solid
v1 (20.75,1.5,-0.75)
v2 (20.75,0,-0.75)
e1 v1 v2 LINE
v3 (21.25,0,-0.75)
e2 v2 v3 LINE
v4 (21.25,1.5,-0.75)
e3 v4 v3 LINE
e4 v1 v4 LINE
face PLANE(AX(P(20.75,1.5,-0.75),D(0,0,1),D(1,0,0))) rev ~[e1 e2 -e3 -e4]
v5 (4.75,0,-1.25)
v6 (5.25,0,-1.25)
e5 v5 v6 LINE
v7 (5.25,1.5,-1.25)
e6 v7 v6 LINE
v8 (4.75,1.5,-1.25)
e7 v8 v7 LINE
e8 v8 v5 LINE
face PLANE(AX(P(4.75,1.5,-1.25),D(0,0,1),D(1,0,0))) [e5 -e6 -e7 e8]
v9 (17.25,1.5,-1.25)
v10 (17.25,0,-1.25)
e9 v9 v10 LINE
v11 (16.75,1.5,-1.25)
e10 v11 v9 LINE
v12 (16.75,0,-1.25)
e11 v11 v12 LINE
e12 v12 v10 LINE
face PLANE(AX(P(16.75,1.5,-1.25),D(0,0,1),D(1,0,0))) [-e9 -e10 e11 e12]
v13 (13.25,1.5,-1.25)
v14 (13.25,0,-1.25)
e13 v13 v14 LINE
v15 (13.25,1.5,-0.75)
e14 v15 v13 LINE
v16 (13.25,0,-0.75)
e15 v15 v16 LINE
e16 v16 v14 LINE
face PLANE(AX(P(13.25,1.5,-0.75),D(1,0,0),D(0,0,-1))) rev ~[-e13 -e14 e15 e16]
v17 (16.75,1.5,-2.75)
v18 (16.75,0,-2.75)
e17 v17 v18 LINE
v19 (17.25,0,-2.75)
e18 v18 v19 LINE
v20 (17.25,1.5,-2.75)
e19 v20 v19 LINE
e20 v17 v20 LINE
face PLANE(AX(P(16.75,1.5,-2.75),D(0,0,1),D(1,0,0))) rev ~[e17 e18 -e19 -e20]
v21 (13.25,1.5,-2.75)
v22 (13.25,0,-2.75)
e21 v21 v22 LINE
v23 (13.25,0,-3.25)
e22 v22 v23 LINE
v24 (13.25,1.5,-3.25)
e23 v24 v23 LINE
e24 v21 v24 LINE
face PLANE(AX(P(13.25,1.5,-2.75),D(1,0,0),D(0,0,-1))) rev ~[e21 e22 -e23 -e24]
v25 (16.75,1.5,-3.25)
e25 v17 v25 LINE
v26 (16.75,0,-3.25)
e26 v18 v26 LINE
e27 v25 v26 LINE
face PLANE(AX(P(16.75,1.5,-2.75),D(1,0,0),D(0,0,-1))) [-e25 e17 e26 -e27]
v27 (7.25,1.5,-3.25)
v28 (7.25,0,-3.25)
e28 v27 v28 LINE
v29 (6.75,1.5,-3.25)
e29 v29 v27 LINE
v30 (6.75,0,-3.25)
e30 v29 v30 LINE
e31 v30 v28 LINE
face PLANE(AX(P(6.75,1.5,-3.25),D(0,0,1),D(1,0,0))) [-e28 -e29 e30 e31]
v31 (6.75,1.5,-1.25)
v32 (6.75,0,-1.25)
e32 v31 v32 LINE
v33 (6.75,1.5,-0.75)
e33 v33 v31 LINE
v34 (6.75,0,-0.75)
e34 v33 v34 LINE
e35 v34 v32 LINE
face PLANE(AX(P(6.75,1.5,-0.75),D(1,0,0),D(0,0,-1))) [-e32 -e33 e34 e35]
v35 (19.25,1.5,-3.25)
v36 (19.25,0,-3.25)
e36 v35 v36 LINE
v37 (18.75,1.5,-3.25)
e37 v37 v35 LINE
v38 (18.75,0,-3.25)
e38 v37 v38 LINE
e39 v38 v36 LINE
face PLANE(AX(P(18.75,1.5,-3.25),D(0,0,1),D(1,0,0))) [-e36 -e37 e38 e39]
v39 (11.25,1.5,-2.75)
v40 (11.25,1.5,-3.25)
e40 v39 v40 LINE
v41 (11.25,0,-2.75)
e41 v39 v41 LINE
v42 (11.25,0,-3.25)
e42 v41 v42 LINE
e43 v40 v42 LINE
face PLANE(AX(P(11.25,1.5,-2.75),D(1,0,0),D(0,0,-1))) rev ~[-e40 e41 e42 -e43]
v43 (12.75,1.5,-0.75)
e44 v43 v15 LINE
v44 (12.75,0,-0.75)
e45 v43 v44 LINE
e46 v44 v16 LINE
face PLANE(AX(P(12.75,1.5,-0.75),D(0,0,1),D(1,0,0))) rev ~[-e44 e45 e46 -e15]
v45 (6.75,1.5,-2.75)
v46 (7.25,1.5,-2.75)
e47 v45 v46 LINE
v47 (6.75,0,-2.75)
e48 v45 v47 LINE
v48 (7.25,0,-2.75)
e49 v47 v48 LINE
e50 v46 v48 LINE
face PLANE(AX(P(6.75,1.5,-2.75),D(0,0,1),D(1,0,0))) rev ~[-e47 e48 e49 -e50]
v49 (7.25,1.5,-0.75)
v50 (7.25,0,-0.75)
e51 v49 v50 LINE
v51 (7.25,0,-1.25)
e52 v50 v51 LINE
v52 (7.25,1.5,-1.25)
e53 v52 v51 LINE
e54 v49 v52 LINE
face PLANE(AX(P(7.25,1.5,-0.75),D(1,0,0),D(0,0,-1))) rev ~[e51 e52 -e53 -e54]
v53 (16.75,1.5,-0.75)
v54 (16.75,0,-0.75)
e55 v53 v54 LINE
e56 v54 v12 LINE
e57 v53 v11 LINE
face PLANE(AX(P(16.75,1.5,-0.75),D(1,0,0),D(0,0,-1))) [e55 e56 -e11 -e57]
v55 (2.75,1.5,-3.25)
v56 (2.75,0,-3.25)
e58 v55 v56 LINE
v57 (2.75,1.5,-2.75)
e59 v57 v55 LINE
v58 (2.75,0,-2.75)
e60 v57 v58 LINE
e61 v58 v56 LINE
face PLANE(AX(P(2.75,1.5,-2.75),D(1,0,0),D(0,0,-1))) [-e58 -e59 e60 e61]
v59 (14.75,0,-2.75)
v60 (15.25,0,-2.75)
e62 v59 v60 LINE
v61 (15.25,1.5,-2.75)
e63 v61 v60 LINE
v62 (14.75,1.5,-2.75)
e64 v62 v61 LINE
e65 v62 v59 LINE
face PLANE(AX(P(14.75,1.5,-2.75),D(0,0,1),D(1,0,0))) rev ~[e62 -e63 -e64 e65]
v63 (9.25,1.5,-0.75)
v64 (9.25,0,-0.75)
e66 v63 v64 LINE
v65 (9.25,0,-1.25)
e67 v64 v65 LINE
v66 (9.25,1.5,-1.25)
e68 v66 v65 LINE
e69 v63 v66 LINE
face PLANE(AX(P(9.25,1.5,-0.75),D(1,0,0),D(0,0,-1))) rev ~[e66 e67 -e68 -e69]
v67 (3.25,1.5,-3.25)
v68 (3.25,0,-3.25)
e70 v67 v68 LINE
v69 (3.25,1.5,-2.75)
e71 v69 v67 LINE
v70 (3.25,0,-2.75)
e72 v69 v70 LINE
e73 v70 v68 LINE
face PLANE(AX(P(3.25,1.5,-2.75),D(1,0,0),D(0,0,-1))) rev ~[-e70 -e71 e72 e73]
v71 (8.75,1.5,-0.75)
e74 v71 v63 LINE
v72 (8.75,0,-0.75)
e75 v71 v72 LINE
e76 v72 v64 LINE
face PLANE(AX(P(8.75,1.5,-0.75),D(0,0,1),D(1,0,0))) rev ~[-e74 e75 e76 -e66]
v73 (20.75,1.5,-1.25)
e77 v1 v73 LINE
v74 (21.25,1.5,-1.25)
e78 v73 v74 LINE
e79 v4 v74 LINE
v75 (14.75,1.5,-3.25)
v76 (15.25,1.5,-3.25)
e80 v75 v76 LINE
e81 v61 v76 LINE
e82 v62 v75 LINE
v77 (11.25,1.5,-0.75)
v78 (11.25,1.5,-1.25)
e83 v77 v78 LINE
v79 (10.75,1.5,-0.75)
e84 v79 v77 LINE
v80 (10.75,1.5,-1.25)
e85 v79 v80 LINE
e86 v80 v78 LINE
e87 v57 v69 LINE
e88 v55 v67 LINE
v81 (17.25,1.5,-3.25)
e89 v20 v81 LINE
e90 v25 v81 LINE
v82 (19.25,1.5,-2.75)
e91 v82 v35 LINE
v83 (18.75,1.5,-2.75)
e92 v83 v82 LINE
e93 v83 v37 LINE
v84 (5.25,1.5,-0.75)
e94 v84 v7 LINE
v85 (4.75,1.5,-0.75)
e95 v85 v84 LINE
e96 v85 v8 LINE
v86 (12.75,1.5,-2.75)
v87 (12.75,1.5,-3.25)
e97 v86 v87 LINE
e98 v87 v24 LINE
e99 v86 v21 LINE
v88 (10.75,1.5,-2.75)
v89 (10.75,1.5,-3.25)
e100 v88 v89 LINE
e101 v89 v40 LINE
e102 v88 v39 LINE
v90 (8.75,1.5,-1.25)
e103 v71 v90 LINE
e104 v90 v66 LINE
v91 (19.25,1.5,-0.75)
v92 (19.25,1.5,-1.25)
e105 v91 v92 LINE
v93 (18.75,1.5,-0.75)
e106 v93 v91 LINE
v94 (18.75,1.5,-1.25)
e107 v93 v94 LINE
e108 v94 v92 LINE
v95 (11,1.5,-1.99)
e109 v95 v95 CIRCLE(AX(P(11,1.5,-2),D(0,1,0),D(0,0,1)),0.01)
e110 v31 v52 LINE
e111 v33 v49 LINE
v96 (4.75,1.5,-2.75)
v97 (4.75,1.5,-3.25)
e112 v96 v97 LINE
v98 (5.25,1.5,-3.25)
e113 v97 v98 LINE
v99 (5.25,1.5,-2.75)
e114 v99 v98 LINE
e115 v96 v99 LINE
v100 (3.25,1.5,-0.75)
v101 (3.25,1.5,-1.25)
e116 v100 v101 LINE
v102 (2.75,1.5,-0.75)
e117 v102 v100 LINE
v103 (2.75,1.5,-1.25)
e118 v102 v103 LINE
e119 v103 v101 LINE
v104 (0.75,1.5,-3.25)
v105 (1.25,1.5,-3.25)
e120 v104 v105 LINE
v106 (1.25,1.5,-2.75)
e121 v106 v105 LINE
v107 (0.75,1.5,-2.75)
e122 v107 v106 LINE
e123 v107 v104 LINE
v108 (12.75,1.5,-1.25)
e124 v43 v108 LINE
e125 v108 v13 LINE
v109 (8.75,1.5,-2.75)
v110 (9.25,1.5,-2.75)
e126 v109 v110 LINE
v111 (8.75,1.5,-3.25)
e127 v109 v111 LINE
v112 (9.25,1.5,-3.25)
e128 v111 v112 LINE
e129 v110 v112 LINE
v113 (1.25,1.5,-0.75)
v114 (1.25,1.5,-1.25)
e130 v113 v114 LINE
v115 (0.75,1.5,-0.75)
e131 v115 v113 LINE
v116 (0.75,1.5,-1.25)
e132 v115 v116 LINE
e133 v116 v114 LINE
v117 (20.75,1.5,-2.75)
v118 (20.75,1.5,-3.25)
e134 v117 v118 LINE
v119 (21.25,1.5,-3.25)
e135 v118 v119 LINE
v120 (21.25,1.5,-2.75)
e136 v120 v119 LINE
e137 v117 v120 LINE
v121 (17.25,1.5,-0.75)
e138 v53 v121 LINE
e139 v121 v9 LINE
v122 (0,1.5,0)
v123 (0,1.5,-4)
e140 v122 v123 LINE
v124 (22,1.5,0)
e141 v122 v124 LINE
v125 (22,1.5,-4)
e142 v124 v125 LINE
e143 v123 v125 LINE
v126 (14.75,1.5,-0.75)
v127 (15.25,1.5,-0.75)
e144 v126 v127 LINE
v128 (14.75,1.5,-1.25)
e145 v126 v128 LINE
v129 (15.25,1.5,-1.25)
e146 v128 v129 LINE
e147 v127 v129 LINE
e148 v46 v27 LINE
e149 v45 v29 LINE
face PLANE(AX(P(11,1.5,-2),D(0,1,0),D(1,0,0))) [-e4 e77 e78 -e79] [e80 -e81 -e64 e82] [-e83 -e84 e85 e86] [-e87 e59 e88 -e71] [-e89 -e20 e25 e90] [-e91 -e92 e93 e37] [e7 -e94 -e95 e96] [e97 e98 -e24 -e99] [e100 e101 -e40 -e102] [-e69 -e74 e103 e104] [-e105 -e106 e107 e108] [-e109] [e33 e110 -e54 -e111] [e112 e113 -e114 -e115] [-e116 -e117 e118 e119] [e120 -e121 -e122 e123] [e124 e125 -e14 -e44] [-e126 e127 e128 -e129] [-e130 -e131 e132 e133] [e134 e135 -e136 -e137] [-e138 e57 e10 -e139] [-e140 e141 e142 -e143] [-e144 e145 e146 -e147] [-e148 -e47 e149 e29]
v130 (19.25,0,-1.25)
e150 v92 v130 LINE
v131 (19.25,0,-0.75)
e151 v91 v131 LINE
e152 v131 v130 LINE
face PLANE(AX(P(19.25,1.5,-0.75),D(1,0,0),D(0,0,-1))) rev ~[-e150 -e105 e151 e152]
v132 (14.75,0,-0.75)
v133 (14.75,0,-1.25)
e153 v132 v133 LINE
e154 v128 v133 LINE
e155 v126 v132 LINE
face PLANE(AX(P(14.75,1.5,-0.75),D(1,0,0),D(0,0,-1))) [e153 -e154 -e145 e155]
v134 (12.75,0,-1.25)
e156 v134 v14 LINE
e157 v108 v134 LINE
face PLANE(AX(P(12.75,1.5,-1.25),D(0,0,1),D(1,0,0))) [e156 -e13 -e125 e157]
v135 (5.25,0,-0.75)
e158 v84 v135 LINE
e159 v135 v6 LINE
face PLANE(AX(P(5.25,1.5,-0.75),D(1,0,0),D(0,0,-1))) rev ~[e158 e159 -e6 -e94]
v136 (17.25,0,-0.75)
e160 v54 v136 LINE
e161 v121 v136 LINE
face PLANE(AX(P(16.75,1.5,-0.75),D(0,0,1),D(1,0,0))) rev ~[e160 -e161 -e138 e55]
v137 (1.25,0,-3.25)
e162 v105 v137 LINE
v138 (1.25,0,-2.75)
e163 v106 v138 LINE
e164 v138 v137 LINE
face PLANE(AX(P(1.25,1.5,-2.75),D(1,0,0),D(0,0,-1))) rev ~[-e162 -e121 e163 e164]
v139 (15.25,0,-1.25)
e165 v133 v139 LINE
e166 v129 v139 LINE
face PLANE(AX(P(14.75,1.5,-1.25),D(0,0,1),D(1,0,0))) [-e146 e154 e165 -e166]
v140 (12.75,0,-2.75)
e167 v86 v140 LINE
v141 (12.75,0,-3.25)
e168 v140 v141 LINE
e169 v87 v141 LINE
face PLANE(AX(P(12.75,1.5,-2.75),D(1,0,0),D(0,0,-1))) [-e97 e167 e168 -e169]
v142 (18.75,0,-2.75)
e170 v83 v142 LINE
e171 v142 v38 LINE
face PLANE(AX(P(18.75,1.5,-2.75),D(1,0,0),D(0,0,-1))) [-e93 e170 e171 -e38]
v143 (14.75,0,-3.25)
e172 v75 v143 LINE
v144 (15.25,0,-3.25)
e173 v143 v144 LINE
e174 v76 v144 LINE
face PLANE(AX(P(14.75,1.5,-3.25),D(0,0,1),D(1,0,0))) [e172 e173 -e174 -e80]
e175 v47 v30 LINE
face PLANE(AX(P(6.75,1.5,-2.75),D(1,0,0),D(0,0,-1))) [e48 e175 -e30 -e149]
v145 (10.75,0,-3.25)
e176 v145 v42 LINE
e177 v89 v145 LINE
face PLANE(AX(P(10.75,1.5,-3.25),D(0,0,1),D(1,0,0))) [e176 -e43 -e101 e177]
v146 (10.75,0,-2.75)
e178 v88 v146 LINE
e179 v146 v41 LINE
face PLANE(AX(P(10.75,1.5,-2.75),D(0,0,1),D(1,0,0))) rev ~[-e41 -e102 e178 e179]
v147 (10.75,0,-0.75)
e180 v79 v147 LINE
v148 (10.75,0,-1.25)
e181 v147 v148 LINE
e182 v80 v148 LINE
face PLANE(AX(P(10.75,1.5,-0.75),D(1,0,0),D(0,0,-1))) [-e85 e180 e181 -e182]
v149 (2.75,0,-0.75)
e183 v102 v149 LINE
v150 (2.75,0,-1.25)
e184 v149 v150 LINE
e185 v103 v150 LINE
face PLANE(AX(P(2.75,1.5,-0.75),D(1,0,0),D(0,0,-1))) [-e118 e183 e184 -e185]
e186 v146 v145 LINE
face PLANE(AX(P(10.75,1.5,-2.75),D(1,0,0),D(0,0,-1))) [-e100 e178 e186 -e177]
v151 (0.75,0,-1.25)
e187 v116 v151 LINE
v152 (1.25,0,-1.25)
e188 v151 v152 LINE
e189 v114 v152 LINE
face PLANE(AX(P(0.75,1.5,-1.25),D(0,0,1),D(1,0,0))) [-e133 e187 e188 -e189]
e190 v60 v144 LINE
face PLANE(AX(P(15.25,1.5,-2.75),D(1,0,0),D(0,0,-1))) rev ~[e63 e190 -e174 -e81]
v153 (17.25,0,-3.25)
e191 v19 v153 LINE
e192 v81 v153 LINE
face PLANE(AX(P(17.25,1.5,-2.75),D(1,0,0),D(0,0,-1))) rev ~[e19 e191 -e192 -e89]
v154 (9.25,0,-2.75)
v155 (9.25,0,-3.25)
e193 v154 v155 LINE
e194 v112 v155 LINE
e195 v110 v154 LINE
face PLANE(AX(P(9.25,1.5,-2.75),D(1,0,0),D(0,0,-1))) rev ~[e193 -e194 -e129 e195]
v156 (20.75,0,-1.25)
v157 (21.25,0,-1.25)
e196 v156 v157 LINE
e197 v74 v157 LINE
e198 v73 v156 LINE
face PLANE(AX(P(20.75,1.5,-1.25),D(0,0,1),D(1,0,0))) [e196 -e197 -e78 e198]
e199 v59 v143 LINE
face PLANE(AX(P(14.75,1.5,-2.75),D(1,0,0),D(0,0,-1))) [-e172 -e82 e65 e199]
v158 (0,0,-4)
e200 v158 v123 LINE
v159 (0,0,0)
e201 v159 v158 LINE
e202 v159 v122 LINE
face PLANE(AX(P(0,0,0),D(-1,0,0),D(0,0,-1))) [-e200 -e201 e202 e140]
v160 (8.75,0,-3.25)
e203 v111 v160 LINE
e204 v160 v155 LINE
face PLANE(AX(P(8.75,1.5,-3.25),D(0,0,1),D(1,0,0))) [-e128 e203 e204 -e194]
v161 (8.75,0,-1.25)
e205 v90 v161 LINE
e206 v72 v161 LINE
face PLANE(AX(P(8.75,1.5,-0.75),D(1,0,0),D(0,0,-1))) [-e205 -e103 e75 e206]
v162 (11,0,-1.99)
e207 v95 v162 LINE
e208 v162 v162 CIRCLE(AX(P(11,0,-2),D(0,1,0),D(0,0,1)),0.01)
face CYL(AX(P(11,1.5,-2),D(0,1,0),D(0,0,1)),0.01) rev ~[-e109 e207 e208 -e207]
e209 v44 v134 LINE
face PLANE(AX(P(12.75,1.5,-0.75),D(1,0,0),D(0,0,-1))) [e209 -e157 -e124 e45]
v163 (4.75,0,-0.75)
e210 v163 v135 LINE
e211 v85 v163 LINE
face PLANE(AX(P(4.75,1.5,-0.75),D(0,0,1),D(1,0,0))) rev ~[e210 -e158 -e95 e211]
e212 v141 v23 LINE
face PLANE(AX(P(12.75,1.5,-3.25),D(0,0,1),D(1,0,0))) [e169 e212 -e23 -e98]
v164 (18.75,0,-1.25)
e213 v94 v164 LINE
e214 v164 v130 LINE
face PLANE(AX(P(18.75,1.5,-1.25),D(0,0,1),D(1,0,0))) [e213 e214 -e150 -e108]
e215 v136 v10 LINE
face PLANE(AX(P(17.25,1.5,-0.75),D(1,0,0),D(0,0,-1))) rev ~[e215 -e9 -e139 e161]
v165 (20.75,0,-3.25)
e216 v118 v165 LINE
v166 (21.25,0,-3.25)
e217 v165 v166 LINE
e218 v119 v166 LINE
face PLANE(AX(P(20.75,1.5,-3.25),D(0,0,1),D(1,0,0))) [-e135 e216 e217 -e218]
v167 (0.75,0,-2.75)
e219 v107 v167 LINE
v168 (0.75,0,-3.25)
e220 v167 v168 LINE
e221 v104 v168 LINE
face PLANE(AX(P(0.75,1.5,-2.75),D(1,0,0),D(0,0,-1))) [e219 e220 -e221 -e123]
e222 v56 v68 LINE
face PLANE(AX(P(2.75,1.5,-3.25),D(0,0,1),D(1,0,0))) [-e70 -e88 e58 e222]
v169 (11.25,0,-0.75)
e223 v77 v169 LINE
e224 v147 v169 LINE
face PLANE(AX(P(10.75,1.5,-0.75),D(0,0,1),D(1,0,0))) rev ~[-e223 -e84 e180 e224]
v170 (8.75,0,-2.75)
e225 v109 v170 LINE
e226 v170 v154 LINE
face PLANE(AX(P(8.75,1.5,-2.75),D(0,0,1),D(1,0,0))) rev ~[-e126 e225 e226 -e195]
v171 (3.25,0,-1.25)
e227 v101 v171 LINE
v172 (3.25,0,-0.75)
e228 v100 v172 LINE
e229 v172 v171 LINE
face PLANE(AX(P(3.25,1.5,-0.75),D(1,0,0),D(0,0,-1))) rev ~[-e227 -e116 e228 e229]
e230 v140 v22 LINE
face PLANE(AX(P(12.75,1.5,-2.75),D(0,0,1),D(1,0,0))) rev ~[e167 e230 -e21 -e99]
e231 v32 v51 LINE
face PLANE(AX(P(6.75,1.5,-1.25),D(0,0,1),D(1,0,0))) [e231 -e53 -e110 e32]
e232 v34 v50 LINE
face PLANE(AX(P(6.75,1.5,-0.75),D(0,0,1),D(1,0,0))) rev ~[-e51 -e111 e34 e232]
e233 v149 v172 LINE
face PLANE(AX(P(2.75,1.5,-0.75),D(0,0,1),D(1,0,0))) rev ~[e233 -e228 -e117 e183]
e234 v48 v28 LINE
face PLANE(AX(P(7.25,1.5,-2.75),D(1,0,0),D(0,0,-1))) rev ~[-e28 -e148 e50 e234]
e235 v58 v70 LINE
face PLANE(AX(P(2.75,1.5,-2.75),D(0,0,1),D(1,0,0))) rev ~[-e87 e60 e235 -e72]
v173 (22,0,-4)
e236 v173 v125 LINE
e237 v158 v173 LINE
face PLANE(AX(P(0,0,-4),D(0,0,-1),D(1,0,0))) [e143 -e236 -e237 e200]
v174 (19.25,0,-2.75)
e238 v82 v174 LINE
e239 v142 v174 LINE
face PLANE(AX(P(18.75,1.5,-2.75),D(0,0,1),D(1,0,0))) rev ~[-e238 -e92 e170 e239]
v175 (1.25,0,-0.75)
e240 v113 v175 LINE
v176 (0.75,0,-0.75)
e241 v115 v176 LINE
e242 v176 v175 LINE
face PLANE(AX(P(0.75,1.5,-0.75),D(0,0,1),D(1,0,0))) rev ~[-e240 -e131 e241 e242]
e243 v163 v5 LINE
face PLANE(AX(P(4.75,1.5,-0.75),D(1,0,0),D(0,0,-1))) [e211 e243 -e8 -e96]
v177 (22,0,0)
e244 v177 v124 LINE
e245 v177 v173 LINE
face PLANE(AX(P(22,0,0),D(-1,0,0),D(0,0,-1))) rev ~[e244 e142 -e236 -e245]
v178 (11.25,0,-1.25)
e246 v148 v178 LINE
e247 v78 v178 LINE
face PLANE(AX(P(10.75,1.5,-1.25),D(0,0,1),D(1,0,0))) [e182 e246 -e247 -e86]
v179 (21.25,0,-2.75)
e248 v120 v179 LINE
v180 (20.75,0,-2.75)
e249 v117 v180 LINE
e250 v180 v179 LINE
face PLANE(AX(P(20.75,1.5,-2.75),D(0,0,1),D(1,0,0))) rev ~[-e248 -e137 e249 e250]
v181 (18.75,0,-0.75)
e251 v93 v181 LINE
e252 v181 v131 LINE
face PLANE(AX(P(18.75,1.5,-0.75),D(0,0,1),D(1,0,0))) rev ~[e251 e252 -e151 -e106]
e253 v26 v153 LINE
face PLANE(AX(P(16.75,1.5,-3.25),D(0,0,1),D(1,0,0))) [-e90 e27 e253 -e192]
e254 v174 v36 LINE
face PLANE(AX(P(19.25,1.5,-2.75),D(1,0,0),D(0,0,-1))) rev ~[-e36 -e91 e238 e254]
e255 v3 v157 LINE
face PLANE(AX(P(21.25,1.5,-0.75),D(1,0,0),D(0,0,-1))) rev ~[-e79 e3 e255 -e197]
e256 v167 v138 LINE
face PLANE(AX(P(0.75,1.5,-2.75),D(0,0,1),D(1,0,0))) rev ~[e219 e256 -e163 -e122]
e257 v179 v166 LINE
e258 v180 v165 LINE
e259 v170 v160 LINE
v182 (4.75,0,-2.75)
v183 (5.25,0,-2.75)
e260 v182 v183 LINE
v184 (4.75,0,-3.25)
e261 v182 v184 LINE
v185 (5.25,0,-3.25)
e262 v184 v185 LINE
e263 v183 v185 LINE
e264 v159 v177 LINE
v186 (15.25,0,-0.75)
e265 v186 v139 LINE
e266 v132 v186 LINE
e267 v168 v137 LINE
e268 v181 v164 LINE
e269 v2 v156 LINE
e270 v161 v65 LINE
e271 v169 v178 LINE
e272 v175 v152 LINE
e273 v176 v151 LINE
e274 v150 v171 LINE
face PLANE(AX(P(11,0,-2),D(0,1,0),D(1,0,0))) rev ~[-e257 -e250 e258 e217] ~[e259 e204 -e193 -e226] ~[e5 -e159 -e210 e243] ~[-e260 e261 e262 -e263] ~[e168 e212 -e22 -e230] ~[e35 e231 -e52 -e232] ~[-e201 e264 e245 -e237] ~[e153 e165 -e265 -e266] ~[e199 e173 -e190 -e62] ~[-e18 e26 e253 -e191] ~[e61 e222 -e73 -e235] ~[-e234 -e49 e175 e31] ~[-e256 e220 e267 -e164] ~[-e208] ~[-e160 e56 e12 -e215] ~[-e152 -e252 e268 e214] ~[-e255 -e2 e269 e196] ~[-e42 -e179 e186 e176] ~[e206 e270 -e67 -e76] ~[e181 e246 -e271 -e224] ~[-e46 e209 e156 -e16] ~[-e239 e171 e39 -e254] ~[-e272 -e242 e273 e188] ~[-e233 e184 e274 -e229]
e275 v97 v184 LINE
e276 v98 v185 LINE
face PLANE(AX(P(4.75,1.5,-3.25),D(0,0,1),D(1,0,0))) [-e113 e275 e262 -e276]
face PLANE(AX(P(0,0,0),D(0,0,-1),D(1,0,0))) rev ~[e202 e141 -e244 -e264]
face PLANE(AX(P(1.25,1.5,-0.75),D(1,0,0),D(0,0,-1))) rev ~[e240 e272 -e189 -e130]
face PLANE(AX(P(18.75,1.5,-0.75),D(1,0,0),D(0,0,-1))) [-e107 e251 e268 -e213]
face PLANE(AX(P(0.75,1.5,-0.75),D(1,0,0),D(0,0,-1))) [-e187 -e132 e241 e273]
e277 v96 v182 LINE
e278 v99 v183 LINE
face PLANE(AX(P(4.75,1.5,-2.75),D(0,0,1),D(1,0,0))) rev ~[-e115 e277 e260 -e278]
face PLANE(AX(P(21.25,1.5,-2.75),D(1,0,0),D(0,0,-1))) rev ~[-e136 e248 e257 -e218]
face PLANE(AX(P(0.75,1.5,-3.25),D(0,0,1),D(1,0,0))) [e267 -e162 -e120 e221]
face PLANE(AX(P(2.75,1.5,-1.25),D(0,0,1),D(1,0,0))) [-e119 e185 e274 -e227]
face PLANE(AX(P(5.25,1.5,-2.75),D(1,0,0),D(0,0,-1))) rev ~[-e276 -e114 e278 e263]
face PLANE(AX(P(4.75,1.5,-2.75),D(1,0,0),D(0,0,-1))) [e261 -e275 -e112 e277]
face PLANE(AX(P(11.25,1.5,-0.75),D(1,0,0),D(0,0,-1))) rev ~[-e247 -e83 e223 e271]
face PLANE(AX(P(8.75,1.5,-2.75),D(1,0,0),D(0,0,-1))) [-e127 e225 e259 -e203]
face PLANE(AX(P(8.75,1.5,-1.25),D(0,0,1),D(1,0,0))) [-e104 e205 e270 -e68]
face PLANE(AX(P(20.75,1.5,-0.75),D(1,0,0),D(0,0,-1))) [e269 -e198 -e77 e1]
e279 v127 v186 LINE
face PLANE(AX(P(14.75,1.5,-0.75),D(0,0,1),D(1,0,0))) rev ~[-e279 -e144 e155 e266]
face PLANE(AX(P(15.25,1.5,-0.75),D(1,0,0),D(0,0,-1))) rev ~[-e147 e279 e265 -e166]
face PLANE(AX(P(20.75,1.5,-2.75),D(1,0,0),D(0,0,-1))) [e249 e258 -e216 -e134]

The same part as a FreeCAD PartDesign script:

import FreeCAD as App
import Part
import Sketcher

doc = App.newDocument("Part")
params = doc.addObject("Spreadsheet::Sheet", "Params")
for row, (alias, value) in enumerate([
    ("sketch1_width", "22 mm"),
    ("sketch1_height", "4 mm"),
    ("pad1_length", "1.5 mm"),
    ("sketch2_width", "0.5 mm"),
    ("pocket1_length", "2 mm"),
    ("sketch3_diameter", "0.02 mm"),
    ("pocket2_length", "1.5 mm"),
], start=1):
    params.set(f"A{row}", alias)
    params.set(f"B{row}", "=" + value)
    params.setAlias(f"B{row}", alias)

body = doc.addObject("PartDesign::Body", "Body")

sketch1 = doc.addObject("Sketcher::SketchObject", "Sketch")
body.addObject(sketch1)
sketch1.AttachmentSupport = (doc.XZ_Plane, [""])
sketch1.MapMode = "FlatFace"
sketch1.addGeometry(Part.LineSegment(App.Vector(0, -4, 0), App.Vector(0, 0, 0)), False)
sketch1.addGeometry(Part.LineSegment(App.Vector(0, 0, 0), App.Vector(22, 0, 0)), False)
sketch1.addGeometry(Part.LineSegment(App.Vector(22, 0, 0), App.Vector(22, -4, 0)), False)
sketch1.addGeometry(Part.LineSegment(App.Vector(22, -4, 0), App.Vector(0, -4, 0)), False)
sketch1.addConstraint(Sketcher.Constraint("Coincident", 0, 2, 1, 1))
sketch1.addConstraint(Sketcher.Constraint("Coincident", 1, 2, 2, 1))
sketch1.addConstraint(Sketcher.Constraint("Coincident", 2, 2, 3, 1))
sketch1.addConstraint(Sketcher.Constraint("Coincident", 3, 2, 0, 1))
sketch1.addConstraint(Sketcher.Constraint("Vertical", 0))
sketch1.addConstraint(Sketcher.Constraint("Horizontal", 1))
sketch1.addConstraint(Sketcher.Constraint("Vertical", 2))
sketch1.addConstraint(Sketcher.Constraint("Horizontal", 3))
sketch1.addConstraint(Sketcher.Constraint("Coincident", 0, 2, -1, 1))
sketch1.addConstraint(Sketcher.Constraint("DistanceX", 1, 1, 1, 2, 22.0))
sketch1.addConstraint(Sketcher.Constraint("DistanceY", 0, 1, 0, 2, 4.0))
sketch1.setExpression("Constraints[9]", "Params.sketch1_width")
sketch1.setExpression("Constraints[10]", "Params.sketch1_height")
pad1 = doc.addObject("PartDesign::Pad", "Pad")
body.addObject(pad1)
pad1.Profile = sketch1
pad1.setExpression("Length", "Params.pad1_length")
pad1.Reversed = True

sketch2 = doc.addObject("Sketcher::SketchObject", "Sketch001")
body.addObject(sketch2)
sketch2.AttachmentSupport = (doc.XZ_Plane, [""])
sketch2.MapMode = "FlatFace"
sketch2.AttachmentOffset = App.Placement(App.Vector(0, 0, -1.5), App.Rotation())
sketch2.addGeometry(Part.LineSegment(App.Vector(2.8, -3.2, 0), App.Vector(2.8, -2.8, 0)), False)
sketch2.addGeometry(Part.LineSegment(App.Vector(2.8, -2.8, 0), App.Vector(3.2, -2.8, 0)), False)
sketch2.addGeometry(Part.LineSegment(App.Vector(3.2, -2.8, 0), App.Vector(3.2, -3.2, 0)), False)
sketch2.addGeometry(Part.LineSegment(App.Vector(3.2, -3.2, 0), App.Vector(2.8, -3.2, 0)), False)
sketch2.addGeometry(Part.LineSegment(App.Vector(0.8, -3.2, 0), App.Vector(0.8, -2.8, 0)), False)
sketch2.addGeometry(Part.LineSegment(App.Vector(0.8, -2.8, 0), App.Vector(1.2, -2.8, 0)), False)
sketch2.addGeometry(Part.LineSegment(App.Vector(1.2, -2.8, 0), App.Vector(1.2, -3.2, 0)), False)
sketch2.addGeometry(Part.LineSegment(App.Vector(1.2, -3.2, 0), App.Vector(0.8, -3.2, 0)), False)
sketch2.addGeometry(Part.LineSegment(App.Vector(4.8, -3.2, 0), App.Vector(4.8, -2.8, 0)), False)
sketch2.addGeometry(Part.LineSegment(App.Vector(4.8, -2.8, 0), App.Vector(5.2, -2.8, 0)), False)
sketch2.addGeometry(Part.LineSegment(App.Vector(5.2, -2.8, 0), App.Vector(5.2, -3.2, 0)), False)
sketch2.addGeometry(Part.LineSegment(App.Vector(5.2, -3.2, 0), App.Vector(4.8, -3.2, 0)), False)
sketch2.addGeometry(Part.LineSegment(App.Vector(6.8, -3.2, 0), App.Vector(6.8, -2.8, 0)), False)
sketch2.addGeometry(Part.LineSegment(App.Vector(6.8, -2.8, 0), App.Vector(7.2, -2.8, 0)), False)
sketch2.addGeometry(Part.LineSegment(App.Vector(7.2, -2.8, 0), App.Vector(7.2, -3.2, 0)), False)
sketch2.addGeometry(Part.LineSegment(App.Vector(7.2, -3.2, 0), App.Vector(6.8, -3.2, 0)), False)
sketch2.addGeometry(Part.LineSegment(App.Vector(8.8, -3.2, 0), App.Vector(8.8, -2.8, 0)), False)
sketch2.addGeometry(Part.LineSegment(App.Vector(8.8, -2.8, 0), App.Vector(9.2, -2.8, 0)), False)
sketch2.addGeometry(Part.LineSegment(App.Vector(9.2, -2.8, 0), App.Vector(9.2, -3.2, 0)), False)
sketch2.addGeometry(Part.LineSegment(App.Vector(9.2, -3.2, 0), App.Vector(8.8, -3.2, 0)), False)
sketch2.addGeometry(Part.LineSegment(App.Vector(10.8, -3.2, 0), App.Vector(10.8, -2.8, 0)), False)
sketch2.addGeometry(Part.LineSegment(App.Vector(10.8, -2.8, 0), App.Vector(11.2, -2.8, 0)), False)
sketch2.addGeometry(Part.LineSegment(App.Vector(11.2, -2.8, 0), App.Vector(11.2, -3.2, 0)), False)
sketch2.addGeometry(Part.LineSegment(App.Vector(11.2, -3.2, 0), App.Vector(10.8, -3.2, 0)), False)
sketch2.addGeometry(Part.LineSegment(App.Vector(12.8, -3.2, 0), App.Vector(12.8, -2.8, 0)), False)
sketch2.addGeometry(Part.LineSegment(App.Vector(12.8, -2.8, 0), App.Vector(13.2, -2.8, 0)), False)
sketch2.addGeometry(Part.LineSegment(App.Vector(13.2, -2.8, 0), App.Vector(13.2, -3.2, 0)), False)
sketch2.addGeometry(Part.LineSegment(App.Vector(13.2, -3.2, 0), App.Vector(12.8, -3.2, 0)), False)
sketch2.addGeometry(Part.LineSegment(App.Vector(14.8, -3.2, 0), App.Vector(14.8, -2.8, 0)), False)
sketch2.addGeometry(Part.LineSegment(App.Vector(14.8, -2.8, 0), App.Vector(15.2, -2.8, 0)), False)
sketch2.addGeometry(Part.LineSegment(App.Vector(15.2, -2.8, 0), App.Vector(15.2, -3.2, 0)), False)
sketch2.addGeometry(Part.LineSegment(App.Vector(15.2, -3.2, 0), App.Vector(14.8, -3.2, 0)), False)
sketch2.addGeometry(Part.LineSegment(App.Vector(16.8, -3.2, 0), App.Vector(16.8, -2.8, 0)), False)
sketch2.addGeometry(Part.LineSegment(App.Vector(16.8, -2.8, 0), App.Vector(17.2, -2.8, 0)), False)
sketch2.addGeometry(Part.LineSegment(App.Vector(17.2, -2.8, 0), App.Vector(17.2, -3.2, 0)), False)
sketch2.addGeometry(Part.LineSegment(App.Vector(17.2, -3.2, 0), App.Vector(16.8, -3.2, 0)), False)
sketch2.addGeometry(Part.LineSegment(App.Vector(18.8, -3.2, 0), App.Vector(18.8, -2.8, 0)), False)
sketch2.addGeometry(Part.LineSegment(App.Vector(18.8, -2.8, 0), App.Vector(19.2, -2.8, 0)), False)
sketch2.addGeometry(Part.LineSegment(App.Vector(19.2, -2.8, 0), App.Vector(19.2, -3.2, 0)), False)
sketch2.addGeometry(Part.LineSegment(App.Vector(19.2, -3.2, 0), App.Vector(18.8, -3.2, 0)), False)
sketch2.addGeometry(Part.LineSegment(App.Vector(20.8, -3.2, 0), App.Vector(20.8, -2.8, 0)), False)
sketch2.addGeometry(Part.LineSegment(App.Vector(20.8, -2.8, 0), App.Vector(21.2, -2.8, 0)), False)
sketch2.addGeometry(Part.LineSegment(App.Vector(21.2, -2.8, 0), App.Vector(21.2, -3.2, 0)), False)
sketch2.addGeometry(Part.LineSegment(App.Vector(21.2, -3.2, 0), App.Vector(20.8, -3.2, 0)), False)
sketch2.addGeometry(Part.LineSegment(App.Vector(0.8, -1.2, 0), App.Vector(0.8, -0.8, 0)), False)
sketch2.addGeometry(Part.LineSegment(App.Vector(0.8, -0.8, 0), App.Vector(1.2, -0.8, 0)), False)
sketch2.addGeometry(Part.LineSegment(App.Vector(1.2, -0.8, 0), App.Vector(1.2, -1.2, 0)), False)
sketch2.addGeometry(Part.LineSegment(App.Vector(1.2, -1.2, 0), App.Vector(0.8, -1.2, 0)), False)
sketch2.addGeometry(Part.LineSegment(App.Vector(2.8, -1.2, 0), App.Vector(2.8, -0.8, 0)), False)
sketch2.addGeometry(Part.LineSegment(App.Vector(2.8, -0.8, 0), App.Vector(3.2, -0.8, 0)), False)
sketch2.addGeometry(Part.LineSegment(App.Vector(3.2, -0.8, 0), App.Vector(3.2, -1.2, 0)), False)
sketch2.addGeometry(Part.LineSegment(App.Vector(3.2, -1.2, 0), App.Vector(2.8, -1.2, 0)), False)
sketch2.addGeometry(Part.LineSegment(App.Vector(4.8, -1.2, 0), App.Vector(4.8, -0.8, 0)), False)
sketch2.addGeometry(Part.LineSegment(App.Vector(4.8, -0.8, 0), App.Vector(5.2, -0.8, 0)), False)
sketch2.addGeometry(Part.LineSegment(App.Vector(5.2, -0.8, 0), App.Vector(5.2, -1.2, 0)), False)
sketch2.addGeometry(Part.LineSegment(App.Vector(5.2, -1.2, 0), App.Vector(4.8, -1.2, 0)), False)
sketch2.addGeometry(Part.LineSegment(App.Vector(6.8, -1.2, 0), App.Vector(6.8, -0.8, 0)), False)
sketch2.addGeometry(Part.LineSegment(App.Vector(6.8, -0.8, 0), App.Vector(7.2, -0.8, 0)), False)
sketch2.addGeometry(Part.LineSegment(App.Vector(7.2, -0.8, 0), App.Vector(7.2, -1.2, 0)), False)
sketch2.addGeometry(Part.LineSegment(App.Vector(7.2, -1.2, 0), App.Vector(6.8, -1.2, 0)), False)
sketch2.addGeometry(Part.LineSegment(App.Vector(8.8, -1.2, 0), App.Vector(8.8, -0.8, 0)), False)
sketch2.addGeometry(Part.LineSegment(App.Vector(8.8, -0.8, 0), App.Vector(9.2, -0.8, 0)), False)
sketch2.addGeometry(Part.LineSegment(App.Vector(9.2, -0.8, 0), App.Vector(9.2, -1.2, 0)), False)
sketch2.addGeometry(Part.LineSegment(App.Vector(9.2, -1.2, 0), App.Vector(8.8, -1.2, 0)), False)
sketch2.addGeometry(Part.LineSegment(App.Vector(10.8, -1.2, 0), App.Vector(10.8, -0.8, 0)), False)
sketch2.addGeometry(Part.LineSegment(App.Vector(10.8, -0.8, 0), App.Vector(11.2, -0.8, 0)), False)
sketch2.addGeometry(Part.LineSegment(App.Vector(11.2, -0.8, 0), App.Vector(11.2, -1.2, 0)), False)
sketch2.addGeometry(Part.LineSegment(App.Vector(11.2, -1.2, 0), App.Vector(10.8, -1.2, 0)), False)
sketch2.addGeometry(Part.LineSegment(App.Vector(12.8, -1.2, 0), App.Vector(12.8, -0.8, 0)), False)
sketch2.addGeometry(Part.LineSegment(App.Vector(12.8, -0.8, 0), App.Vector(13.2, -0.8, 0)), False)
sketch2.addGeometry(Part.LineSegment(App.Vector(13.2, -0.8, 0), App.Vector(13.2, -1.2, 0)), False)
sketch2.addGeometry(Part.LineSegment(App.Vector(13.2, -1.2, 0), App.Vector(12.8, -1.2, 0)), False)
sketch2.addGeometry(Part.LineSegment(App.Vector(14.8, -1.2, 0), App.Vector(14.8, -0.8, 0)), False)
sketch2.addGeometry(Part.LineSegment(App.Vector(14.8, -0.8, 0), App.Vector(15.2, -0.8, 0)), False)
sketch2.addGeometry(Part.LineSegment(App.Vector(15.2, -0.8, 0), App.Vector(15.2, -1.2, 0)), False)
sketch2.addGeometry(Part.LineSegment(App.Vector(15.2, -1.2, 0), App.Vector(14.8, -1.2, 0)), False)
sketch2.addGeometry(Part.LineSegment(App.Vector(16.8, -1.2, 0), App.Vector(16.8, -0.8, 0)), False)
sketch2.addGeometry(Part.LineSegment(App.Vector(16.8, -0.8, 0), App.Vector(17.2, -0.8, 0)), False)
sketch2.addGeometry(Part.LineSegment(App.Vector(17.2, -0.8, 0), App.Vector(17.2, -1.2, 0)), False)
sketch2.addGeometry(Part.LineSegment(App.Vector(17.2, -1.2, 0), App.Vector(16.8, -1.2, 0)), False)
sketch2.addGeometry(Part.LineSegment(App.Vector(18.8, -1.2, 0), App.Vector(18.8, -0.8, 0)), False)
sketch2.addGeometry(Part.LineSegment(App.Vector(18.8, -0.8, 0), App.Vector(19.2, -0.8, 0)), False)
sketch2.addGeometry(Part.LineSegment(App.Vector(19.2, -0.8, 0), App.Vector(19.2, -1.2, 0)), False)
sketch2.addGeometry(Part.LineSegment(App.Vector(19.2, -1.2, 0), App.Vector(18.8, -1.2, 0)), False)
sketch2.addGeometry(Part.LineSegment(App.Vector(20.8, -1.2, 0), App.Vector(20.8, -0.8, 0)), False)
sketch2.addGeometry(Part.LineSegment(App.Vector(20.8, -0.8, 0), App.Vector(21.2, -0.8, 0)), False)
sketch2.addGeometry(Part.LineSegment(App.Vector(21.2, -0.8, 0), App.Vector(21.2, -1.2, 0)), False)
sketch2.addGeometry(Part.LineSegment(App.Vector(21.2, -1.2, 0), App.Vector(20.8, -1.2, 0)), False)
sketch2.addConstraint(Sketcher.Constraint("Coincident", 0, 2, 1, 1))
sketch2.addConstraint(Sketcher.Constraint("Coincident", 1, 2, 2, 1))
sketch2.addConstraint(Sketcher.Constraint("Coincident", 2, 2, 3, 1))
sketch2.addConstraint(Sketcher.Constraint("Coincident", 3, 2, 0, 1))
sketch2.addConstraint(Sketcher.Constraint("Coincident", 4, 2, 5, 1))
sketch2.addConstraint(Sketcher.Constraint("Coincident", 5, 2, 6, 1))
sketch2.addConstraint(Sketcher.Constraint("Coincident", 6, 2, 7, 1))
sketch2.addConstraint(Sketcher.Constraint("Coincident", 7, 2, 4, 1))
sketch2.addConstraint(Sketcher.Constraint("Coincident", 8, 2, 9, 1))
sketch2.addConstraint(Sketcher.Constraint("Coincident", 9, 2, 10, 1))
sketch2.addConstraint(Sketcher.Constraint("Coincident", 10, 2, 11, 1))
sketch2.addConstraint(Sketcher.Constraint("Coincident", 11, 2, 8, 1))
sketch2.addConstraint(Sketcher.Constraint("Coincident", 12, 2, 13, 1))
sketch2.addConstraint(Sketcher.Constraint("Coincident", 13, 2, 14, 1))
sketch2.addConstraint(Sketcher.Constraint("Coincident", 14, 2, 15, 1))
sketch2.addConstraint(Sketcher.Constraint("Coincident", 15, 2, 12, 1))
sketch2.addConstraint(Sketcher.Constraint("Coincident", 16, 2, 17, 1))
sketch2.addConstraint(Sketcher.Constraint("Coincident", 17, 2, 18, 1))
sketch2.addConstraint(Sketcher.Constraint("Coincident", 18, 2, 19, 1))
sketch2.addConstraint(Sketcher.Constraint("Coincident", 19, 2, 16, 1))
sketch2.addConstraint(Sketcher.Constraint("Coincident", 20, 2, 21, 1))
sketch2.addConstraint(Sketcher.Constraint("Coincident", 21, 2, 22, 1))
sketch2.addConstraint(Sketcher.Constraint("Coincident", 22, 2, 23, 1))
sketch2.addConstraint(Sketcher.Constraint("Coincident", 23, 2, 20, 1))
sketch2.addConstraint(Sketcher.Constraint("Coincident", 24, 2, 25, 1))
sketch2.addConstraint(Sketcher.Constraint("Coincident", 25, 2, 26, 1))
sketch2.addConstraint(Sketcher.Constraint("Coincident", 26, 2, 27, 1))
sketch2.addConstraint(Sketcher.Constraint("Coincident", 27, 2, 24, 1))
sketch2.addConstraint(Sketcher.Constraint("Coincident", 28, 2, 29, 1))
sketch2.addConstraint(Sketcher.Constraint("Coincident", 29, 2, 30, 1))
sketch2.addConstraint(Sketcher.Constraint("Coincident", 30, 2, 31, 1))
sketch2.addConstraint(Sketcher.Constraint("Coincident", 31, 2, 28, 1))
sketch2.addConstraint(Sketcher.Constraint("Coincident", 32, 2, 33, 1))
sketch2.addConstraint(Sketcher.Constraint("Coincident", 33, 2, 34, 1))
sketch2.addConstraint(Sketcher.Constraint("Coincident", 34, 2, 35, 1))
sketch2.addConstraint(Sketcher.Constraint("Coincident", 35, 2, 32, 1))
sketch2.addConstraint(Sketcher.Constraint("Coincident", 36, 2, 37, 1))
sketch2.addConstraint(Sketcher.Constraint("Coincident", 37, 2, 38, 1))
sketch2.addConstraint(Sketcher.Constraint("Coincident", 38, 2, 39, 1))
sketch2.addConstraint(Sketcher.Constraint("Coincident", 39, 2, 36, 1))
sketch2.addConstraint(Sketcher.Constraint("Coincident", 40, 2, 41, 1))
sketch2.addConstraint(Sketcher.Constraint("Coincident", 41, 2, 42, 1))
sketch2.addConstraint(Sketcher.Constraint("Coincident", 42, 2, 43, 1))
sketch2.addConstraint(Sketcher.Constraint("Coincident", 43, 2, 40, 1))
sketch2.addConstraint(Sketcher.Constraint("Coincident", 44, 2, 45, 1))
sketch2.addConstraint(Sketcher.Constraint("Coincident", 45, 2, 46, 1))
sketch2.addConstraint(Sketcher.Constraint("Coincident", 46, 2, 47, 1))
sketch2.addConstraint(Sketcher.Constraint("Coincident", 47, 2, 44, 1))
sketch2.addConstraint(Sketcher.Constraint("Coincident", 48, 2, 49, 1))
sketch2.addConstraint(Sketcher.Constraint("Coincident", 49, 2, 50, 1))
sketch2.addConstraint(Sketcher.Constraint("Coincident", 50, 2, 51, 1))
sketch2.addConstraint(Sketcher.Constraint("Coincident", 51, 2, 48, 1))
sketch2.addConstraint(Sketcher.Constraint("Coincident", 52, 2, 53, 1))
sketch2.addConstraint(Sketcher.Constraint("Coincident", 53, 2, 54, 1))
sketch2.addConstraint(Sketcher.Constraint("Coincident", 54, 2, 55, 1))
sketch2.addConstraint(Sketcher.Constraint("Coincident", 55, 2, 52, 1))
sketch2.addConstraint(Sketcher.Constraint("Coincident", 56, 2, 57, 1))
sketch2.addConstraint(Sketcher.Constraint("Coincident", 57, 2, 58, 1))
sketch2.addConstraint(Sketcher.Constraint("Coincident", 58, 2, 59, 1))
sketch2.addConstraint(Sketcher.Constraint("Coincident", 59, 2, 56, 1))
sketch2.addConstraint(Sketcher.Constraint("Coincident", 60, 2, 61, 1))
sketch2.addConstraint(Sketcher.Constraint("Coincident", 61, 2, 62, 1))
sketch2.addConstraint(Sketcher.Constraint("Coincident", 62, 2, 63, 1))
sketch2.addConstraint(Sketcher.Constraint("Coincident", 63, 2, 60, 1))
sketch2.addConstraint(Sketcher.Constraint("Coincident", 64, 2, 65, 1))
sketch2.addConstraint(Sketcher.Constraint("Coincident", 65, 2, 66, 1))
sketch2.addConstraint(Sketcher.Constraint("Coincident", 66, 2, 67, 1))
sketch2.addConstraint(Sketcher.Constraint("Coincident", 67, 2, 64, 1))
sketch2.addConstraint(Sketcher.Constraint("Coincident", 68, 2, 69, 1))
sketch2.addConstraint(Sketcher.Constraint("Coincident", 69, 2, 70, 1))
sketch2.addConstraint(Sketcher.Constraint("Coincident", 70, 2, 71, 1))
sketch2.addConstraint(Sketcher.Constraint("Coincident", 71, 2, 68, 1))
sketch2.addConstraint(Sketcher.Constraint("Coincident", 72, 2, 73, 1))
sketch2.addConstraint(Sketcher.Constraint("Coincident", 73, 2, 74, 1))
sketch2.addConstraint(Sketcher.Constraint("Coincident", 74, 2, 75, 1))
sketch2.addConstraint(Sketcher.Constraint("Coincident", 75, 2, 72, 1))
sketch2.addConstraint(Sketcher.Constraint("Coincident", 76, 2, 77, 1))
sketch2.addConstraint(Sketcher.Constraint("Coincident", 77, 2, 78, 1))
sketch2.addConstraint(Sketcher.Constraint("Coincident", 78, 2, 79, 1))
sketch2.addConstraint(Sketcher.Constraint("Coincident", 79, 2, 76, 1))
sketch2.addConstraint(Sketcher.Constraint("Coincident", 80, 2, 81, 1))
sketch2.addConstraint(Sketcher.Constraint("Coincident", 81, 2, 82, 1))
sketch2.addConstraint(Sketcher.Constraint("Coincident", 82, 2, 83, 1))
sketch2.addConstraint(Sketcher.Constraint("Coincident", 83, 2, 80, 1))
sketch2.addConstraint(Sketcher.Constraint("Coincident", 84, 2, 85, 1))
sketch2.addConstraint(Sketcher.Constraint("Coincident", 85, 2, 86, 1))
sketch2.addConstraint(Sketcher.Constraint("Coincident", 86, 2, 87, 1))
sketch2.addConstraint(Sketcher.Constraint("Coincident", 87, 2, 84, 1))
sketch2.addConstraint(Sketcher.Constraint("Vertical", 0))
sketch2.addConstraint(Sketcher.Constraint("Horizontal", 1))
sketch2.addConstraint(Sketcher.Constraint("Vertical", 2))
sketch2.addConstraint(Sketcher.Constraint("Horizontal", 3))
sketch2.addConstraint(Sketcher.Constraint("Vertical", 4))
sketch2.addConstraint(Sketcher.Constraint("Horizontal", 5))
sketch2.addConstraint(Sketcher.Constraint("Vertical", 6))
sketch2.addConstraint(Sketcher.Constraint("Horizontal", 7))
sketch2.addConstraint(Sketcher.Constraint("Vertical", 8))
sketch2.addConstraint(Sketcher.Constraint("Horizontal", 9))
sketch2.addConstraint(Sketcher.Constraint("Vertical", 10))
sketch2.addConstraint(Sketcher.Constraint("Horizontal", 11))
sketch2.addConstraint(Sketcher.Constraint("Vertical", 12))
sketch2.addConstraint(Sketcher.Constraint("Horizontal", 13))
sketch2.addConstraint(Sketcher.Constraint("Vertical", 14))
sketch2.addConstraint(Sketcher.Constraint("Horizontal", 15))
sketch2.addConstraint(Sketcher.Constraint("Vertical", 16))
sketch2.addConstraint(Sketcher.Constraint("Horizontal", 17))
sketch2.addConstraint(Sketcher.Constraint("Vertical", 18))
sketch2.addConstraint(Sketcher.Constraint("Horizontal", 19))
sketch2.addConstraint(Sketcher.Constraint("Vertical", 20))
sketch2.addConstraint(Sketcher.Constraint("Horizontal", 21))
sketch2.addConstraint(Sketcher.Constraint("Vertical", 22))
sketch2.addConstraint(Sketcher.Constraint("Horizontal", 23))
sketch2.addConstraint(Sketcher.Constraint("Vertical", 24))
sketch2.addConstraint(Sketcher.Constraint("Horizontal", 25))
sketch2.addConstraint(Sketcher.Constraint("Vertical", 26))
sketch2.addConstraint(Sketcher.Constraint("Horizontal", 27))
sketch2.addConstraint(Sketcher.Constraint("Vertical", 28))
sketch2.addConstraint(Sketcher.Constraint("Horizontal", 29))
sketch2.addConstraint(Sketcher.Constraint("Vertical", 30))
sketch2.addConstraint(Sketcher.Constraint("Horizontal", 31))
sketch2.addConstraint(Sketcher.Constraint("Vertical", 32))
sketch2.addConstraint(Sketcher.Constraint("Horizontal", 33))
sketch2.addConstraint(Sketcher.Constraint("Vertical", 34))
sketch2.addConstraint(Sketcher.Constraint("Horizontal", 35))
sketch2.addConstraint(Sketcher.Constraint("Vertical", 36))
sketch2.addConstraint(Sketcher.Constraint("Horizontal", 37))
sketch2.addConstraint(Sketcher.Constraint("Vertical", 38))
sketch2.addConstraint(Sketcher.Constraint("Horizontal", 39))
sketch2.addConstraint(Sketcher.Constraint("Vertical", 40))
sketch2.addConstraint(Sketcher.Constraint("Horizontal", 41))
sketch2.addConstraint(Sketcher.Constraint("Vertical", 42))
sketch2.addConstraint(Sketcher.Constraint("Horizontal", 43))
sketch2.addConstraint(Sketcher.Constraint("Vertical", 44))
sketch2.addConstraint(Sketcher.Constraint("Horizontal", 45))
sketch2.addConstraint(Sketcher.Constraint("Vertical", 46))
sketch2.addConstraint(Sketcher.Constraint("Horizontal", 47))
sketch2.addConstraint(Sketcher.Constraint("Vertical", 48))
sketch2.addConstraint(Sketcher.Constraint("Horizontal", 49))
sketch2.addConstraint(Sketcher.Constraint("Vertical", 50))
sketch2.addConstraint(Sketcher.Constraint("Horizontal", 51))
sketch2.addConstraint(Sketcher.Constraint("Vertical", 52))
sketch2.addConstraint(Sketcher.Constraint("Horizontal", 53))
sketch2.addConstraint(Sketcher.Constraint("Vertical", 54))
sketch2.addConstraint(Sketcher.Constraint("Horizontal", 55))
sketch2.addConstraint(Sketcher.Constraint("Vertical", 56))
sketch2.addConstraint(Sketcher.Constraint("Horizontal", 57))
sketch2.addConstraint(Sketcher.Constraint("Vertical", 58))
sketch2.addConstraint(Sketcher.Constraint("Horizontal", 59))
sketch2.addConstraint(Sketcher.Constraint("Vertical", 60))
sketch2.addConstraint(Sketcher.Constraint("Horizontal", 61))
sketch2.addConstraint(Sketcher.Constraint("Vertical", 62))
sketch2.addConstraint(Sketcher.Constraint("Horizontal", 63))
sketch2.addConstraint(Sketcher.Constraint("Vertical", 64))
sketch2.addConstraint(Sketcher.Constraint("Horizontal", 65))
sketch2.addConstraint(Sketcher.Constraint("Vertical", 66))
sketch2.addConstraint(Sketcher.Constraint("Horizontal", 67))
sketch2.addConstraint(Sketcher.Constraint("Vertical", 68))
sketch2.addConstraint(Sketcher.Constraint("Horizontal", 69))
sketch2.addConstraint(Sketcher.Constraint("Vertical", 70))
sketch2.addConstraint(Sketcher.Constraint("Horizontal", 71))
sketch2.addConstraint(Sketcher.Constraint("Vertical", 72))
sketch2.addConstraint(Sketcher.Constraint("Horizontal", 73))
sketch2.addConstraint(Sketcher.Constraint("Vertical", 74))
sketch2.addConstraint(Sketcher.Constraint("Horizontal", 75))
sketch2.addConstraint(Sketcher.Constraint("Vertical", 76))
sketch2.addConstraint(Sketcher.Constraint("Horizontal", 77))
sketch2.addConstraint(Sketcher.Constraint("Vertical", 78))
sketch2.addConstraint(Sketcher.Constraint("Horizontal", 79))
sketch2.addConstraint(Sketcher.Constraint("Vertical", 80))
sketch2.addConstraint(Sketcher.Constraint("Horizontal", 81))
sketch2.addConstraint(Sketcher.Constraint("Vertical", 82))
sketch2.addConstraint(Sketcher.Constraint("Horizontal", 83))
sketch2.addConstraint(Sketcher.Constraint("Vertical", 84))
sketch2.addConstraint(Sketcher.Constraint("Horizontal", 85))
sketch2.addConstraint(Sketcher.Constraint("Vertical", 86))
sketch2.addConstraint(Sketcher.Constraint("Horizontal", 87))
sketch2.addConstraint(Sketcher.Constraint("Horizontal", 1, 2, 4, 2))
sketch2.addConstraint(Sketcher.Constraint("Horizontal", 3, 2, 6, 2))
sketch2.addConstraint(Sketcher.Constraint("Horizontal", 5, 2, 8, 2))
sketch2.addConstraint(Sketcher.Constraint("Horizontal", 7, 2, 10, 2))
sketch2.addConstraint(Sketcher.Constraint("Horizontal", 9, 2, 12, 2))
sketch2.addConstraint(Sketcher.Constraint("Horizontal", 11, 2, 14, 2))
sketch2.addConstraint(Sketcher.Constraint("Horizontal", 13, 2, 16, 2))
sketch2.addConstraint(Sketcher.Constraint("Horizontal", 15, 2, 18, 2))
sketch2.addConstraint(Sketcher.Constraint("Horizontal", 17, 2, 20, 2))
sketch2.addConstraint(Sketcher.Constraint("Horizontal", 19, 2, 22, 2))
sketch2.addConstraint(Sketcher.Constraint("Horizontal", 21, 2, 24, 2))
sketch2.addConstraint(Sketcher.Constraint("Horizontal", 23, 2, 26, 2))
sketch2.addConstraint(Sketcher.Constraint("Horizontal", 25, 2, 28, 2))
sketch2.addConstraint(Sketcher.Constraint("Horizontal", 27, 2, 30, 2))
sketch2.addConstraint(Sketcher.Constraint("Horizontal", 29, 2, 32, 2))
sketch2.addConstraint(Sketcher.Constraint("Horizontal", 31, 2, 34, 2))
sketch2.addConstraint(Sketcher.Constraint("Horizontal", 33, 2, 36, 2))
sketch2.addConstraint(Sketcher.Constraint("Horizontal", 35, 2, 38, 2))
sketch2.addConstraint(Sketcher.Constraint("Horizontal", 37, 2, 40, 2))
sketch2.addConstraint(Sketcher.Constraint("Horizontal", 39, 2, 42, 2))
sketch2.addConstraint(Sketcher.Constraint("Horizontal", 45, 2, 48, 2))
sketch2.addConstraint(Sketcher.Constraint("Horizontal", 47, 2, 50, 2))
sketch2.addConstraint(Sketcher.Constraint("Horizontal", 49, 2, 52, 2))
sketch2.addConstraint(Sketcher.Constraint("Horizontal", 51, 2, 54, 2))
sketch2.addConstraint(Sketcher.Constraint("Horizontal", 53, 2, 56, 2))
sketch2.addConstraint(Sketcher.Constraint("Horizontal", 55, 2, 58, 2))
sketch2.addConstraint(Sketcher.Constraint("Horizontal", 57, 2, 60, 2))
sketch2.addConstraint(Sketcher.Constraint("Horizontal", 59, 2, 62, 2))
sketch2.addConstraint(Sketcher.Constraint("Horizontal", 61, 2, 64, 2))
sketch2.addConstraint(Sketcher.Constraint("Horizontal", 63, 2, 66, 2))
sketch2.addConstraint(Sketcher.Constraint("Horizontal", 65, 2, 68, 2))
sketch2.addConstraint(Sketcher.Constraint("Horizontal", 67, 2, 70, 2))
sketch2.addConstraint(Sketcher.Constraint("Horizontal", 69, 2, 72, 2))
sketch2.addConstraint(Sketcher.Constraint("Horizontal", 71, 2, 74, 2))
sketch2.addConstraint(Sketcher.Constraint("Horizontal", 73, 2, 76, 2))
sketch2.addConstraint(Sketcher.Constraint("Horizontal", 75, 2, 78, 2))
sketch2.addConstraint(Sketcher.Constraint("Horizontal", 77, 2, 80, 2))
sketch2.addConstraint(Sketcher.Constraint("Horizontal", 79, 2, 82, 2))
sketch2.addConstraint(Sketcher.Constraint("Horizontal", 81, 2, 84, 2))
sketch2.addConstraint(Sketcher.Constraint("Horizontal", 83, 2, 86, 2))
sketch2.addConstraint(Sketcher.Constraint("Vertical", 7, 2, 44, 2))
sketch2.addConstraint(Sketcher.Constraint("Vertical", 6, 2, 45, 2))
sketch2.addConstraint(Sketcher.Constraint("Vertical", 3, 2, 48, 2))
sketch2.addConstraint(Sketcher.Constraint("Vertical", 2, 2, 49, 2))
sketch2.addConstraint(Sketcher.Constraint("Vertical", 11, 2, 52, 2))
sketch2.addConstraint(Sketcher.Constraint("Vertical", 10, 2, 53, 2))
sketch2.addConstraint(Sketcher.Constraint("Vertical", 15, 2, 56, 2))
sketch2.addConstraint(Sketcher.Constraint("Vertical", 14, 2, 57, 2))
sketch2.addConstraint(Sketcher.Constraint("Vertical", 19, 2, 60, 2))
sketch2.addConstraint(Sketcher.Constraint("Vertical", 18, 2, 61, 2))
sketch2.addConstraint(Sketcher.Constraint("Vertical", 23, 2, 64, 2))
sketch2.addConstraint(Sketcher.Constraint("Vertical", 22, 2, 65, 2))
sketch2.addConstraint(Sketcher.Constraint("Vertical", 27, 2, 68, 2))
sketch2.addConstraint(Sketcher.Constraint("Vertical", 26, 2, 69, 2))
sketch2.addConstraint(Sketcher.Constraint("Vertical", 31, 2, 72, 2))
sketch2.addConstraint(Sketcher.Constraint("Vertical", 30, 2, 73, 2))
sketch2.addConstraint(Sketcher.Constraint("Vertical", 35, 2, 76, 2))
sketch2.addConstraint(Sketcher.Constraint("Vertical", 34, 2, 77, 2))
sketch2.addConstraint(Sketcher.Constraint("Vertical", 39, 2, 80, 2))
sketch2.addConstraint(Sketcher.Constraint("Vertical", 38, 2, 81, 2))
sketch2.addConstraint(Sketcher.Constraint("Vertical", 43, 2, 84, 2))
sketch2.addConstraint(Sketcher.Constraint("Vertical", 42, 2, 85, 2))
sketch2.addConstraint(Sketcher.Constraint("Equal", 3, 5))
sketch2.addConstraint(Sketcher.Constraint("Equal", 7, 9))
sketch2.addConstraint(Sketcher.Constraint("Equal", 11, 13))
sketch2.addConstraint(Sketcher.Constraint("Equal", 15, 17))
sketch2.addConstraint(Sketcher.Constraint("Equal", 19, 21))
sketch2.addConstraint(Sketcher.Constraint("Equal", 23, 25))
sketch2.addConstraint(Sketcher.Constraint("Equal", 27, 29))
sketch2.addConstraint(Sketcher.Constraint("Equal", 31, 33))
sketch2.addConstraint(Sketcher.Constraint("Equal", 35, 37))
sketch2.addConstraint(Sketcher.Constraint("Equal", 39, 41))
sketch2.addConstraint(Sketcher.Constraint("Equal", 87, 0))
sketch2.addConstraint(Sketcher.Constraint("Equal", 42, 44))
sketch2.addConstraint(Sketcher.Constraint("DistanceX", 1, 1, 1, 2, 0.5))
sketch2.addConstraint(Sketcher.Constraint("DistanceX", -1, 1, 0, 2, 2.75))
sketch2.addConstraint(Sketcher.Constraint("DistanceY", 0, 2, -1, 1, 2.75))
sketch2.addConstraint(Sketcher.Constraint("DistanceX", -1, 1, 4, 2, 0.75))
sketch2.addConstraint(Sketcher.Constraint("DistanceX", -1, 1, 8, 2, 4.75))
sketch2.addConstraint(Sketcher.Constraint("DistanceX", -1, 1, 12, 2, 6.75))
sketch2.addConstraint(Sketcher.Constraint("DistanceX", -1, 1, 16, 2, 8.75))
sketch2.addConstraint(Sketcher.Constraint("DistanceX", -1, 1, 20, 2, 10.75))
sketch2.addConstraint(Sketcher.Constraint("DistanceX", -1, 1, 24, 2, 12.75))
sketch2.addConstraint(Sketcher.Constraint("DistanceX", -1, 1, 28, 2, 14.75))
sketch2.addConstraint(Sketcher.Constraint("DistanceX", -1, 1, 32, 2, 16.75))
sketch2.addConstraint(Sketcher.Constraint("DistanceX", -1, 1, 36, 2, 18.75))
sketch2.addConstraint(Sketcher.Constraint("DistanceX", -1, 1, 40, 2, 20.75))
sketch2.addConstraint(Sketcher.Constraint("DistanceY", 44, 2, -1, 1, 0.75))
sketch2.setExpression("Constraints[250]", "Params.sketch2_width")
pocket1 = doc.addObject("PartDesign::Pocket", "Pocket")
body.addObject(pocket1)
pocket1.Profile = sketch2
pocket1.setExpression("Length", "Params.pocket1_length")
pocket1.Reversed = True

sketch3 = doc.addObject("Sketcher::SketchObject", "Sketch002")
body.addObject(sketch3)
sketch3.AttachmentSupport = (doc.XZ_Plane, [""])
sketch3.MapMode = "FlatFace"
sketch3.AttachmentOffset = App.Placement(App.Vector(0, 0, -1.5), App.Rotation())
sketch3.addGeometry(Part.Circle(App.Vector(11, -2, 0), App.Vector(0, 0, 1), 0.01), False)
sketch3.addConstraint(Sketcher.Constraint("Diameter", 0, 0.02))
sketch3.addConstraint(Sketcher.Constraint("DistanceX", -1, 1, 0, 3, 11.0))
sketch3.addConstraint(Sketcher.Constraint("DistanceY", 0, 3, -1, 1, 2.0))
sketch3.setExpression("Constraints[0]", "Params.sketch3_diameter")
pocket2 = doc.addObject("PartDesign::Pocket", "Pocket001")
body.addObject(pocket2)
pocket2.Profile = sketch3
pocket2.setExpression("Length", "Params.pocket2_length")
pocket2.Reversed = True

doc.recompute()
